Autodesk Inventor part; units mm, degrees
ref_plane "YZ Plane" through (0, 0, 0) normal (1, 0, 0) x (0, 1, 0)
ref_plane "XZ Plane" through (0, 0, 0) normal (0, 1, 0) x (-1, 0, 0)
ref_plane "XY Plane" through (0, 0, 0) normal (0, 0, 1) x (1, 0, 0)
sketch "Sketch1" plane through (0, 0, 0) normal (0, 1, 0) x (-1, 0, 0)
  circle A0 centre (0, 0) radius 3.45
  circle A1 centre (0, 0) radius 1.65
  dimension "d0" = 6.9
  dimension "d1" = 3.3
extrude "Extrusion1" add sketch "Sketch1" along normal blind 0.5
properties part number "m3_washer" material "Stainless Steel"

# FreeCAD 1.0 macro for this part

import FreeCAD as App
import Part
import Sketcher
from FreeCAD import Vector

doc = App.newDocument("Part")
body = doc.addObject("PartDesign::Body", "Body")

# Sketch on XZ plane
sketch1 = doc.addObject("Sketcher::SketchObject", "Sketch")
body.addObject(sketch1)
sketch1.AttachmentSupport = (doc.XZ_Plane, [""])
sketch1.MapMode = "FlatFace"
sketch1.addGeometry([
    Part.Circle(Vector(0, 0, 0), Vector(0, 0, 1), 3.5),
    Part.Circle(Vector(0, 0, 0), Vector(0, 0, 1), 1.6),
], False)
sketch1.addConstraint([
    Sketcher.Constraint("Coincident", 0, 3, -1, 1),
    Sketcher.Constraint("Coincident", 1, 3, -1, 1),
    Sketcher.Constraint("Diameter", 0, 6.9),
    Sketcher.Constraint("Diameter", 1, 3.3),
])
pad1 = doc.addObject("PartDesign::Pad", "Pad")
body.addObject(pad1)
pad1.Profile = sketch1
pad1.Length = 0.5
pad1.Reversed = True

doc.recompute()
